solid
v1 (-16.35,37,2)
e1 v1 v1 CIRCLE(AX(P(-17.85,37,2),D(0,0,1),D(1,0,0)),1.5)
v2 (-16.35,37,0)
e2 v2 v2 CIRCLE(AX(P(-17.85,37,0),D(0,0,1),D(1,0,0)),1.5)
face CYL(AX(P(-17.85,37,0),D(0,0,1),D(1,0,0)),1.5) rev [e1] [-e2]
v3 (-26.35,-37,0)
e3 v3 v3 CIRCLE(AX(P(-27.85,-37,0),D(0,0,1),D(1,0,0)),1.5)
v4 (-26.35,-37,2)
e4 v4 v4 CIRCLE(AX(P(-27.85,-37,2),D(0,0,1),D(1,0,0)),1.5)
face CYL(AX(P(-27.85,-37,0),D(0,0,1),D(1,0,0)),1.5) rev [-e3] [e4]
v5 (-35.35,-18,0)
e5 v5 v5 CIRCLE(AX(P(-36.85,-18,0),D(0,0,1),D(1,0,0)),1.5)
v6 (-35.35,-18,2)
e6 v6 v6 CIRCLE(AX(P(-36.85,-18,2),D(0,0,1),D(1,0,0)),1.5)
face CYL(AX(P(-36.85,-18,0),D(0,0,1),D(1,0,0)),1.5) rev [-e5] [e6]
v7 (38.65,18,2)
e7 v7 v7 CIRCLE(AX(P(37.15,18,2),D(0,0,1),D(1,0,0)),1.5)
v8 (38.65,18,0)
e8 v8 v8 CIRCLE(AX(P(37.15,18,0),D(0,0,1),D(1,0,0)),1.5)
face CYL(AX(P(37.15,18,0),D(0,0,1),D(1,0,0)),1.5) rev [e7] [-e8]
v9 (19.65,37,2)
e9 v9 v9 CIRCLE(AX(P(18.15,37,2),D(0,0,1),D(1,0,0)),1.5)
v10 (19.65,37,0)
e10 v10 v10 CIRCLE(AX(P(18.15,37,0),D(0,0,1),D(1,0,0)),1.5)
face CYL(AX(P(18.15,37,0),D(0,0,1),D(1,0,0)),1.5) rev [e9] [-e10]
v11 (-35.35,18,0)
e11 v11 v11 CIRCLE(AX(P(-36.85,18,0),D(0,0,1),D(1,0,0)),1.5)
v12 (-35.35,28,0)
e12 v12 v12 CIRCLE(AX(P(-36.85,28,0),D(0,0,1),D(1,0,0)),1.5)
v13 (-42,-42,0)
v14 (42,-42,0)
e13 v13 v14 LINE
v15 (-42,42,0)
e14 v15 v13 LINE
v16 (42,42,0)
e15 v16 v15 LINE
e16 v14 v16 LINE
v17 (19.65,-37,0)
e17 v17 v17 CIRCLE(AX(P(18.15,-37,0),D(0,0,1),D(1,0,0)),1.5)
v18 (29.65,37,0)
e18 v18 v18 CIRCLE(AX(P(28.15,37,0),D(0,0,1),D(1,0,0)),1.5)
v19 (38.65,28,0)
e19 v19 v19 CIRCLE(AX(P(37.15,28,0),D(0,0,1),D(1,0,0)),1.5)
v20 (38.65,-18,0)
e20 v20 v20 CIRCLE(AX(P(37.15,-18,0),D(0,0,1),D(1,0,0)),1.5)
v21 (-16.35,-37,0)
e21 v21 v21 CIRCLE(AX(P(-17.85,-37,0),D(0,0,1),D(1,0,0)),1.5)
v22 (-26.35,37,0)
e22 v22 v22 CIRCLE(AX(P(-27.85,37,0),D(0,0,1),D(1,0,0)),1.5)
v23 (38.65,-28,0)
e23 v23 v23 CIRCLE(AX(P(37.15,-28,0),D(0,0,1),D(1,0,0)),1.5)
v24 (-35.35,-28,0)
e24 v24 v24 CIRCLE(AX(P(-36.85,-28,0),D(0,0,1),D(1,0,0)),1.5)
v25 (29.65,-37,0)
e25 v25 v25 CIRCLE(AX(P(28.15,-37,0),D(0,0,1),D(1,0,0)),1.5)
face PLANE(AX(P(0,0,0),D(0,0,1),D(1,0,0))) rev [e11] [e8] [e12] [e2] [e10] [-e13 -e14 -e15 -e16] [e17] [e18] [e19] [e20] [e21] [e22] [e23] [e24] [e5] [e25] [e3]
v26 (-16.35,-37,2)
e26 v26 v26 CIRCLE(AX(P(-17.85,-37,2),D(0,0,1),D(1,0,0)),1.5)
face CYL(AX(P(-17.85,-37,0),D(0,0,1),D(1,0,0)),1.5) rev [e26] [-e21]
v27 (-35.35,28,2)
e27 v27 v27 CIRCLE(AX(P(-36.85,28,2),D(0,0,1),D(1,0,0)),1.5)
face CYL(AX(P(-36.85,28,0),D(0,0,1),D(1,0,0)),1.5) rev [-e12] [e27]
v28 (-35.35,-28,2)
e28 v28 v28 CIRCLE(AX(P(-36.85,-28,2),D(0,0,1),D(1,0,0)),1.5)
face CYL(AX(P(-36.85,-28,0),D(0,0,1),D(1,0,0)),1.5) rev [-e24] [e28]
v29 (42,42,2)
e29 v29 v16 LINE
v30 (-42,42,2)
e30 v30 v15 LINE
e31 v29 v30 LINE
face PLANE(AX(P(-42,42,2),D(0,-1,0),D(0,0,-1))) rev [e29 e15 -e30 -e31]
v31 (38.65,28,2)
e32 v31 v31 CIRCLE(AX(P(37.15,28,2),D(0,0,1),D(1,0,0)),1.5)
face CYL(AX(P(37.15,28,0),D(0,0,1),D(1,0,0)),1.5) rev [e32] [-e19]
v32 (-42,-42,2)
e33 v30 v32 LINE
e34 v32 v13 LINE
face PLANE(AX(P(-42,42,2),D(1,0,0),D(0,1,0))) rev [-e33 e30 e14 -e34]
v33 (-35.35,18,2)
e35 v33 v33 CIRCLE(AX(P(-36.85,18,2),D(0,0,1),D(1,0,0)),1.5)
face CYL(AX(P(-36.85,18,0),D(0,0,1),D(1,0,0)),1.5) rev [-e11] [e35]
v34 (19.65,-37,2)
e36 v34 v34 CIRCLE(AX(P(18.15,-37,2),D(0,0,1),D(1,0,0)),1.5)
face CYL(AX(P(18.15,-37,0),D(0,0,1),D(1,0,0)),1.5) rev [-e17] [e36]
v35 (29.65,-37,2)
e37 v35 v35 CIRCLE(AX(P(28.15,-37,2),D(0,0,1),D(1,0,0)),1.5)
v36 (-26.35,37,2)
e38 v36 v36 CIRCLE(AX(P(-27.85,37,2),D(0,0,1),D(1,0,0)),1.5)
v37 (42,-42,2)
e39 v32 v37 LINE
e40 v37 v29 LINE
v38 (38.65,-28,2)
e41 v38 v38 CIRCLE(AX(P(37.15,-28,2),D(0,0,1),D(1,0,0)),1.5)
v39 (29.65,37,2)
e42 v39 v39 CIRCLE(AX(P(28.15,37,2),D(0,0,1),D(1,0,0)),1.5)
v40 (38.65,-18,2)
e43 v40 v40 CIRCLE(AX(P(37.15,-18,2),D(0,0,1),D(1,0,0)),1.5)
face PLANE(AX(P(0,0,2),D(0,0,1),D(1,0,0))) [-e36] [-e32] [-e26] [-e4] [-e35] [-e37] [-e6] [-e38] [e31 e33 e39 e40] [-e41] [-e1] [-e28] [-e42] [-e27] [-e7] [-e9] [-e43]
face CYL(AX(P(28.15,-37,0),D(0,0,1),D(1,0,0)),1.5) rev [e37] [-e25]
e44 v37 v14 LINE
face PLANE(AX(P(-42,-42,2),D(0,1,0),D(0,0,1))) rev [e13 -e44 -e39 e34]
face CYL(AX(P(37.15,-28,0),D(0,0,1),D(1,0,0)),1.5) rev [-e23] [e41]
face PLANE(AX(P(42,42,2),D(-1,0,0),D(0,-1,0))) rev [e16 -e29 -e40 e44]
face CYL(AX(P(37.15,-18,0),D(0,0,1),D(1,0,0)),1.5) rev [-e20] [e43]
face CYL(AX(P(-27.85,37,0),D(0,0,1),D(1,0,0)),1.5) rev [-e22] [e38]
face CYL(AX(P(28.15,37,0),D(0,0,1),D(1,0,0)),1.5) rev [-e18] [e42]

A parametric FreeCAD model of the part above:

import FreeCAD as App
import Part
import Sketcher

V = App.Vector


def add_polygon(sketch, points):
    """Adds a closed chain of lines whose ends are joined by coincident constraints."""
    first, n = sketch.GeometryCount, len(points)
    for a, b in zip(points, points[1:] + points[:1]):
        sketch.addGeometry(Part.LineSegment(App.Vector(*a, 0), App.Vector(*b, 0)), False)
    for i in range(n):
        sketch.addConstraint(Sketcher.Constraint("Coincident", first + i, 2, first + (i + 1) % n, 1))

doc = App.newDocument("Part")
body = doc.addObject("PartDesign::Body", "Body")

# Sketch on XY plane
sketch1 = body.newObject("Sketcher::SketchObject", "Sketch")
sketch1.AttachmentSupport = (doc.getObject("XY_Plane"), [""])
sketch1.MapMode = "FlatFace"
add_polygon(sketch1, [(-42, 42), (-42, -42), (42, -42), (42, 42)])  # lines 0-3
sketch1.addConstraint(Sketcher.Constraint("Vertical", 0))
sketch1.addConstraint(Sketcher.Constraint("Horizontal", 1))
sketch1.addConstraint(Sketcher.Constraint("Vertical", 2))
sketch1.addConstraint(Sketcher.Constraint("Horizontal", 3))
sketch1.addConstraint(Sketcher.Constraint("Symmetric", 0, 2, 2, 2, -1, 1))
sketch1.addConstraint(Sketcher.Constraint("Equal", 3, 0))
sketch1.addConstraint(Sketcher.Constraint("DistanceX", 1, 1, 1, 2, 84.0))
pad1 = body.newObject("PartDesign::Pad", "Pad")
pad1.Profile = sketch1
pad1.Length = 2

# Sketch on XY plane
sketch2 = body.newObject("Sketcher::SketchObject", "Sketch001")
sketch2.AttachmentSupport = (doc.getObject("XY_Plane"), [""])
sketch2.MapMode = "FlatFace"
sketch2.AttachmentOffset = App.Placement(V(0, 0, 2), App.Rotation())
sketch2.addGeometry(Part.Circle(V(18.1, -37, 0), V(0, 0, 1), 1.5), False)
sketch2.addGeometry(Part.Circle(V(28.1, -37, 0), V(0, 0, 1), 1.5), False)
sketch2.addGeometry(Part.Circle(V(37.1, -28, 0), V(0, 0, 1), 1.5), False)
sketch2.addGeometry(Part.Circle(V(37.1, -18, 0), V(0, 0, 1), 1.5), False)
sketch2.addGeometry(Part.Circle(V(37.1, 18, 0), V(0, 0, 1), 1.5), False)
sketch2.addGeometry(Part.Circle(V(37.1, 28, 0), V(0, 0, 1), 1.5), False)
sketch2.addGeometry(Part.Circle(V(-17.9, -37, 0), V(0, 0, 1), 1.5), False)
sketch2.addGeometry(Part.Circle(V(-27.9, -37, 0), V(0, 0, 1), 1.5), False)
sketch2.addGeometry(Part.Circle(V(-36.9, -28, 0), V(0, 0, 1), 1.5), False)
sketch2.addGeometry(Part.Circle(V(-36.9, -18, 0), V(0, 0, 1), 1.5), False)
sketch2.addGeometry(Part.Circle(V(-36.9, 18, 0), V(0, 0, 1), 1.5), False)
sketch2.addGeometry(Part.Circle(V(-36.9, 28, 0), V(0, 0, 1), 1.5), False)
sketch2.addGeometry(Part.Circle(V(28.1, 37, 0), V(0, 0, 1), 1.5), False)
sketch2.addGeometry(Part.Circle(V(18.1, 37, 0), V(0, 0, 1), 1.5), False)
sketch2.addGeometry(Part.Circle(V(-17.9, 37, 0), V(0, 0, 1), 1.5), False)
sketch2.addGeometry(Part.Circle(V(-27.9, 37, 0), V(0, 0, 1), 1.5), False)
sketch2.addConstraint(Sketcher.Constraint("Equal", 0, 1))
sketch2.addConstraint(Sketcher.Constraint("Equal", 1, 2))
sketch2.addConstraint(Sketcher.Constraint("Equal", 2, 3))
sketch2.addConstraint(Sketcher.Constraint("Equal", 3, 4))
sketch2.addConstraint(Sketcher.Constraint("Equal", 4, 5))
sketch2.addConstraint(Sketcher.Constraint("Equal", 5, 6))
sketch2.addConstraint(Sketcher.Constraint("Equal", 6, 7))
sketch2.addConstraint(Sketcher.Constraint("Equal", 7, 8))
sketch2.addConstraint(Sketcher.Constraint("Equal", 8, 9))
sketch2.addConstraint(Sketcher.Constraint("Equal", 9, 10))
sketch2.addConstraint(Sketcher.Constraint("Equal", 10, 11))
sketch2.addConstraint(Sketcher.Constraint("Equal", 11, 12))
sketch2.addConstraint(Sketcher.Constraint("Equal", 12, 13))
sketch2.addConstraint(Sketcher.Constraint("Equal", 13, 14))
sketch2.addConstraint(Sketcher.Constraint("Equal", 14, 15))
sketch2.addConstraint(Sketcher.Constraint("Symmetric", 3, 3, 4, 3, -1))
sketch2.addConstraint(Sketcher.Constraint("Symmetric", 2, 3, 5, 3, -1))
sketch2.addConstraint(Sketcher.Constraint("Symmetric", 9, 3, 10, 3, -1))
sketch2.addConstraint(Sketcher.Constraint("Symmetric", 8, 3, 11, 3, -1))
sketch2.addConstraint(Sketcher.Constraint("Symmetric", 1, 3, 12, 3, -1))
sketch2.addConstraint(Sketcher.Constraint("Symmetric", 0, 3, 13, 3, -1))
sketch2.addConstraint(Sketcher.Constraint("Symmetric", 6, 3, 14, 3, -1))
sketch2.addConstraint(Sketcher.Constraint("Symmetric", 7, 3, 15, 3, -1))
sketch2.addConstraint(Sketcher.Constraint("Horizontal", 0, 3, 1, 3))
sketch2.addConstraint(Sketcher.Constraint("Horizontal", 1, 3, 6, 3))
sketch2.addConstraint(Sketcher.Constraint("Horizontal", 6, 3, 7, 3))
sketch2.addConstraint(Sketcher.Constraint("Horizontal", 2, 3, 8, 3))
sketch2.addConstraint(Sketcher.Constraint("Horizontal", 3, 3, 9, 3))
sketch2.addConstraint(Sketcher.Constraint("Vertical", 2, 3, 3, 3))
sketch2.addConstraint(Sketcher.Constraint("Vertical", 8, 3, 9, 3))
sketch2.addConstraint(Sketcher.Constraint("Diameter", 0, 3.0))
sketch2.addConstraint(Sketcher.Constraint("DistanceY", 0, 3, -1, 1, 37.0))
sketch2.addConstraint(Sketcher.Constraint("DistanceY", 2, 3, -1, 1, 28.0))
sketch2.addConstraint(Sketcher.Constraint("DistanceY", 3, 3, -1, 1, 18.0))
sketch2.addConstraint(Sketcher.Constraint("DistanceX", 0, 3, 1, 3, 10.0))
sketch2.addConstraint(Sketcher.Constraint("DistanceX", 1, 3, 2, 3, 9.0))
sketch2.addConstraint(Sketcher.Constraint("DistanceX", 6, 3, 0, 3, 36.0))
sketch2.addConstraint(Sketcher.Constraint("DistanceX", 7, 3, 6, 3, 10.0))
sketch2.addConstraint(Sketcher.Constraint("DistanceX", 8, 3, 7, 3, 9.0))
sketch2.addConstraint(Sketcher.Constraint("DistanceX", -1, 1, 0, 3, 18.15))
pocket1 = body.newObject("PartDesign::Pocket", "Pocket")
pocket1.Profile = sketch2
pocket1.Type = "ThroughAll"

doc.recompute()
